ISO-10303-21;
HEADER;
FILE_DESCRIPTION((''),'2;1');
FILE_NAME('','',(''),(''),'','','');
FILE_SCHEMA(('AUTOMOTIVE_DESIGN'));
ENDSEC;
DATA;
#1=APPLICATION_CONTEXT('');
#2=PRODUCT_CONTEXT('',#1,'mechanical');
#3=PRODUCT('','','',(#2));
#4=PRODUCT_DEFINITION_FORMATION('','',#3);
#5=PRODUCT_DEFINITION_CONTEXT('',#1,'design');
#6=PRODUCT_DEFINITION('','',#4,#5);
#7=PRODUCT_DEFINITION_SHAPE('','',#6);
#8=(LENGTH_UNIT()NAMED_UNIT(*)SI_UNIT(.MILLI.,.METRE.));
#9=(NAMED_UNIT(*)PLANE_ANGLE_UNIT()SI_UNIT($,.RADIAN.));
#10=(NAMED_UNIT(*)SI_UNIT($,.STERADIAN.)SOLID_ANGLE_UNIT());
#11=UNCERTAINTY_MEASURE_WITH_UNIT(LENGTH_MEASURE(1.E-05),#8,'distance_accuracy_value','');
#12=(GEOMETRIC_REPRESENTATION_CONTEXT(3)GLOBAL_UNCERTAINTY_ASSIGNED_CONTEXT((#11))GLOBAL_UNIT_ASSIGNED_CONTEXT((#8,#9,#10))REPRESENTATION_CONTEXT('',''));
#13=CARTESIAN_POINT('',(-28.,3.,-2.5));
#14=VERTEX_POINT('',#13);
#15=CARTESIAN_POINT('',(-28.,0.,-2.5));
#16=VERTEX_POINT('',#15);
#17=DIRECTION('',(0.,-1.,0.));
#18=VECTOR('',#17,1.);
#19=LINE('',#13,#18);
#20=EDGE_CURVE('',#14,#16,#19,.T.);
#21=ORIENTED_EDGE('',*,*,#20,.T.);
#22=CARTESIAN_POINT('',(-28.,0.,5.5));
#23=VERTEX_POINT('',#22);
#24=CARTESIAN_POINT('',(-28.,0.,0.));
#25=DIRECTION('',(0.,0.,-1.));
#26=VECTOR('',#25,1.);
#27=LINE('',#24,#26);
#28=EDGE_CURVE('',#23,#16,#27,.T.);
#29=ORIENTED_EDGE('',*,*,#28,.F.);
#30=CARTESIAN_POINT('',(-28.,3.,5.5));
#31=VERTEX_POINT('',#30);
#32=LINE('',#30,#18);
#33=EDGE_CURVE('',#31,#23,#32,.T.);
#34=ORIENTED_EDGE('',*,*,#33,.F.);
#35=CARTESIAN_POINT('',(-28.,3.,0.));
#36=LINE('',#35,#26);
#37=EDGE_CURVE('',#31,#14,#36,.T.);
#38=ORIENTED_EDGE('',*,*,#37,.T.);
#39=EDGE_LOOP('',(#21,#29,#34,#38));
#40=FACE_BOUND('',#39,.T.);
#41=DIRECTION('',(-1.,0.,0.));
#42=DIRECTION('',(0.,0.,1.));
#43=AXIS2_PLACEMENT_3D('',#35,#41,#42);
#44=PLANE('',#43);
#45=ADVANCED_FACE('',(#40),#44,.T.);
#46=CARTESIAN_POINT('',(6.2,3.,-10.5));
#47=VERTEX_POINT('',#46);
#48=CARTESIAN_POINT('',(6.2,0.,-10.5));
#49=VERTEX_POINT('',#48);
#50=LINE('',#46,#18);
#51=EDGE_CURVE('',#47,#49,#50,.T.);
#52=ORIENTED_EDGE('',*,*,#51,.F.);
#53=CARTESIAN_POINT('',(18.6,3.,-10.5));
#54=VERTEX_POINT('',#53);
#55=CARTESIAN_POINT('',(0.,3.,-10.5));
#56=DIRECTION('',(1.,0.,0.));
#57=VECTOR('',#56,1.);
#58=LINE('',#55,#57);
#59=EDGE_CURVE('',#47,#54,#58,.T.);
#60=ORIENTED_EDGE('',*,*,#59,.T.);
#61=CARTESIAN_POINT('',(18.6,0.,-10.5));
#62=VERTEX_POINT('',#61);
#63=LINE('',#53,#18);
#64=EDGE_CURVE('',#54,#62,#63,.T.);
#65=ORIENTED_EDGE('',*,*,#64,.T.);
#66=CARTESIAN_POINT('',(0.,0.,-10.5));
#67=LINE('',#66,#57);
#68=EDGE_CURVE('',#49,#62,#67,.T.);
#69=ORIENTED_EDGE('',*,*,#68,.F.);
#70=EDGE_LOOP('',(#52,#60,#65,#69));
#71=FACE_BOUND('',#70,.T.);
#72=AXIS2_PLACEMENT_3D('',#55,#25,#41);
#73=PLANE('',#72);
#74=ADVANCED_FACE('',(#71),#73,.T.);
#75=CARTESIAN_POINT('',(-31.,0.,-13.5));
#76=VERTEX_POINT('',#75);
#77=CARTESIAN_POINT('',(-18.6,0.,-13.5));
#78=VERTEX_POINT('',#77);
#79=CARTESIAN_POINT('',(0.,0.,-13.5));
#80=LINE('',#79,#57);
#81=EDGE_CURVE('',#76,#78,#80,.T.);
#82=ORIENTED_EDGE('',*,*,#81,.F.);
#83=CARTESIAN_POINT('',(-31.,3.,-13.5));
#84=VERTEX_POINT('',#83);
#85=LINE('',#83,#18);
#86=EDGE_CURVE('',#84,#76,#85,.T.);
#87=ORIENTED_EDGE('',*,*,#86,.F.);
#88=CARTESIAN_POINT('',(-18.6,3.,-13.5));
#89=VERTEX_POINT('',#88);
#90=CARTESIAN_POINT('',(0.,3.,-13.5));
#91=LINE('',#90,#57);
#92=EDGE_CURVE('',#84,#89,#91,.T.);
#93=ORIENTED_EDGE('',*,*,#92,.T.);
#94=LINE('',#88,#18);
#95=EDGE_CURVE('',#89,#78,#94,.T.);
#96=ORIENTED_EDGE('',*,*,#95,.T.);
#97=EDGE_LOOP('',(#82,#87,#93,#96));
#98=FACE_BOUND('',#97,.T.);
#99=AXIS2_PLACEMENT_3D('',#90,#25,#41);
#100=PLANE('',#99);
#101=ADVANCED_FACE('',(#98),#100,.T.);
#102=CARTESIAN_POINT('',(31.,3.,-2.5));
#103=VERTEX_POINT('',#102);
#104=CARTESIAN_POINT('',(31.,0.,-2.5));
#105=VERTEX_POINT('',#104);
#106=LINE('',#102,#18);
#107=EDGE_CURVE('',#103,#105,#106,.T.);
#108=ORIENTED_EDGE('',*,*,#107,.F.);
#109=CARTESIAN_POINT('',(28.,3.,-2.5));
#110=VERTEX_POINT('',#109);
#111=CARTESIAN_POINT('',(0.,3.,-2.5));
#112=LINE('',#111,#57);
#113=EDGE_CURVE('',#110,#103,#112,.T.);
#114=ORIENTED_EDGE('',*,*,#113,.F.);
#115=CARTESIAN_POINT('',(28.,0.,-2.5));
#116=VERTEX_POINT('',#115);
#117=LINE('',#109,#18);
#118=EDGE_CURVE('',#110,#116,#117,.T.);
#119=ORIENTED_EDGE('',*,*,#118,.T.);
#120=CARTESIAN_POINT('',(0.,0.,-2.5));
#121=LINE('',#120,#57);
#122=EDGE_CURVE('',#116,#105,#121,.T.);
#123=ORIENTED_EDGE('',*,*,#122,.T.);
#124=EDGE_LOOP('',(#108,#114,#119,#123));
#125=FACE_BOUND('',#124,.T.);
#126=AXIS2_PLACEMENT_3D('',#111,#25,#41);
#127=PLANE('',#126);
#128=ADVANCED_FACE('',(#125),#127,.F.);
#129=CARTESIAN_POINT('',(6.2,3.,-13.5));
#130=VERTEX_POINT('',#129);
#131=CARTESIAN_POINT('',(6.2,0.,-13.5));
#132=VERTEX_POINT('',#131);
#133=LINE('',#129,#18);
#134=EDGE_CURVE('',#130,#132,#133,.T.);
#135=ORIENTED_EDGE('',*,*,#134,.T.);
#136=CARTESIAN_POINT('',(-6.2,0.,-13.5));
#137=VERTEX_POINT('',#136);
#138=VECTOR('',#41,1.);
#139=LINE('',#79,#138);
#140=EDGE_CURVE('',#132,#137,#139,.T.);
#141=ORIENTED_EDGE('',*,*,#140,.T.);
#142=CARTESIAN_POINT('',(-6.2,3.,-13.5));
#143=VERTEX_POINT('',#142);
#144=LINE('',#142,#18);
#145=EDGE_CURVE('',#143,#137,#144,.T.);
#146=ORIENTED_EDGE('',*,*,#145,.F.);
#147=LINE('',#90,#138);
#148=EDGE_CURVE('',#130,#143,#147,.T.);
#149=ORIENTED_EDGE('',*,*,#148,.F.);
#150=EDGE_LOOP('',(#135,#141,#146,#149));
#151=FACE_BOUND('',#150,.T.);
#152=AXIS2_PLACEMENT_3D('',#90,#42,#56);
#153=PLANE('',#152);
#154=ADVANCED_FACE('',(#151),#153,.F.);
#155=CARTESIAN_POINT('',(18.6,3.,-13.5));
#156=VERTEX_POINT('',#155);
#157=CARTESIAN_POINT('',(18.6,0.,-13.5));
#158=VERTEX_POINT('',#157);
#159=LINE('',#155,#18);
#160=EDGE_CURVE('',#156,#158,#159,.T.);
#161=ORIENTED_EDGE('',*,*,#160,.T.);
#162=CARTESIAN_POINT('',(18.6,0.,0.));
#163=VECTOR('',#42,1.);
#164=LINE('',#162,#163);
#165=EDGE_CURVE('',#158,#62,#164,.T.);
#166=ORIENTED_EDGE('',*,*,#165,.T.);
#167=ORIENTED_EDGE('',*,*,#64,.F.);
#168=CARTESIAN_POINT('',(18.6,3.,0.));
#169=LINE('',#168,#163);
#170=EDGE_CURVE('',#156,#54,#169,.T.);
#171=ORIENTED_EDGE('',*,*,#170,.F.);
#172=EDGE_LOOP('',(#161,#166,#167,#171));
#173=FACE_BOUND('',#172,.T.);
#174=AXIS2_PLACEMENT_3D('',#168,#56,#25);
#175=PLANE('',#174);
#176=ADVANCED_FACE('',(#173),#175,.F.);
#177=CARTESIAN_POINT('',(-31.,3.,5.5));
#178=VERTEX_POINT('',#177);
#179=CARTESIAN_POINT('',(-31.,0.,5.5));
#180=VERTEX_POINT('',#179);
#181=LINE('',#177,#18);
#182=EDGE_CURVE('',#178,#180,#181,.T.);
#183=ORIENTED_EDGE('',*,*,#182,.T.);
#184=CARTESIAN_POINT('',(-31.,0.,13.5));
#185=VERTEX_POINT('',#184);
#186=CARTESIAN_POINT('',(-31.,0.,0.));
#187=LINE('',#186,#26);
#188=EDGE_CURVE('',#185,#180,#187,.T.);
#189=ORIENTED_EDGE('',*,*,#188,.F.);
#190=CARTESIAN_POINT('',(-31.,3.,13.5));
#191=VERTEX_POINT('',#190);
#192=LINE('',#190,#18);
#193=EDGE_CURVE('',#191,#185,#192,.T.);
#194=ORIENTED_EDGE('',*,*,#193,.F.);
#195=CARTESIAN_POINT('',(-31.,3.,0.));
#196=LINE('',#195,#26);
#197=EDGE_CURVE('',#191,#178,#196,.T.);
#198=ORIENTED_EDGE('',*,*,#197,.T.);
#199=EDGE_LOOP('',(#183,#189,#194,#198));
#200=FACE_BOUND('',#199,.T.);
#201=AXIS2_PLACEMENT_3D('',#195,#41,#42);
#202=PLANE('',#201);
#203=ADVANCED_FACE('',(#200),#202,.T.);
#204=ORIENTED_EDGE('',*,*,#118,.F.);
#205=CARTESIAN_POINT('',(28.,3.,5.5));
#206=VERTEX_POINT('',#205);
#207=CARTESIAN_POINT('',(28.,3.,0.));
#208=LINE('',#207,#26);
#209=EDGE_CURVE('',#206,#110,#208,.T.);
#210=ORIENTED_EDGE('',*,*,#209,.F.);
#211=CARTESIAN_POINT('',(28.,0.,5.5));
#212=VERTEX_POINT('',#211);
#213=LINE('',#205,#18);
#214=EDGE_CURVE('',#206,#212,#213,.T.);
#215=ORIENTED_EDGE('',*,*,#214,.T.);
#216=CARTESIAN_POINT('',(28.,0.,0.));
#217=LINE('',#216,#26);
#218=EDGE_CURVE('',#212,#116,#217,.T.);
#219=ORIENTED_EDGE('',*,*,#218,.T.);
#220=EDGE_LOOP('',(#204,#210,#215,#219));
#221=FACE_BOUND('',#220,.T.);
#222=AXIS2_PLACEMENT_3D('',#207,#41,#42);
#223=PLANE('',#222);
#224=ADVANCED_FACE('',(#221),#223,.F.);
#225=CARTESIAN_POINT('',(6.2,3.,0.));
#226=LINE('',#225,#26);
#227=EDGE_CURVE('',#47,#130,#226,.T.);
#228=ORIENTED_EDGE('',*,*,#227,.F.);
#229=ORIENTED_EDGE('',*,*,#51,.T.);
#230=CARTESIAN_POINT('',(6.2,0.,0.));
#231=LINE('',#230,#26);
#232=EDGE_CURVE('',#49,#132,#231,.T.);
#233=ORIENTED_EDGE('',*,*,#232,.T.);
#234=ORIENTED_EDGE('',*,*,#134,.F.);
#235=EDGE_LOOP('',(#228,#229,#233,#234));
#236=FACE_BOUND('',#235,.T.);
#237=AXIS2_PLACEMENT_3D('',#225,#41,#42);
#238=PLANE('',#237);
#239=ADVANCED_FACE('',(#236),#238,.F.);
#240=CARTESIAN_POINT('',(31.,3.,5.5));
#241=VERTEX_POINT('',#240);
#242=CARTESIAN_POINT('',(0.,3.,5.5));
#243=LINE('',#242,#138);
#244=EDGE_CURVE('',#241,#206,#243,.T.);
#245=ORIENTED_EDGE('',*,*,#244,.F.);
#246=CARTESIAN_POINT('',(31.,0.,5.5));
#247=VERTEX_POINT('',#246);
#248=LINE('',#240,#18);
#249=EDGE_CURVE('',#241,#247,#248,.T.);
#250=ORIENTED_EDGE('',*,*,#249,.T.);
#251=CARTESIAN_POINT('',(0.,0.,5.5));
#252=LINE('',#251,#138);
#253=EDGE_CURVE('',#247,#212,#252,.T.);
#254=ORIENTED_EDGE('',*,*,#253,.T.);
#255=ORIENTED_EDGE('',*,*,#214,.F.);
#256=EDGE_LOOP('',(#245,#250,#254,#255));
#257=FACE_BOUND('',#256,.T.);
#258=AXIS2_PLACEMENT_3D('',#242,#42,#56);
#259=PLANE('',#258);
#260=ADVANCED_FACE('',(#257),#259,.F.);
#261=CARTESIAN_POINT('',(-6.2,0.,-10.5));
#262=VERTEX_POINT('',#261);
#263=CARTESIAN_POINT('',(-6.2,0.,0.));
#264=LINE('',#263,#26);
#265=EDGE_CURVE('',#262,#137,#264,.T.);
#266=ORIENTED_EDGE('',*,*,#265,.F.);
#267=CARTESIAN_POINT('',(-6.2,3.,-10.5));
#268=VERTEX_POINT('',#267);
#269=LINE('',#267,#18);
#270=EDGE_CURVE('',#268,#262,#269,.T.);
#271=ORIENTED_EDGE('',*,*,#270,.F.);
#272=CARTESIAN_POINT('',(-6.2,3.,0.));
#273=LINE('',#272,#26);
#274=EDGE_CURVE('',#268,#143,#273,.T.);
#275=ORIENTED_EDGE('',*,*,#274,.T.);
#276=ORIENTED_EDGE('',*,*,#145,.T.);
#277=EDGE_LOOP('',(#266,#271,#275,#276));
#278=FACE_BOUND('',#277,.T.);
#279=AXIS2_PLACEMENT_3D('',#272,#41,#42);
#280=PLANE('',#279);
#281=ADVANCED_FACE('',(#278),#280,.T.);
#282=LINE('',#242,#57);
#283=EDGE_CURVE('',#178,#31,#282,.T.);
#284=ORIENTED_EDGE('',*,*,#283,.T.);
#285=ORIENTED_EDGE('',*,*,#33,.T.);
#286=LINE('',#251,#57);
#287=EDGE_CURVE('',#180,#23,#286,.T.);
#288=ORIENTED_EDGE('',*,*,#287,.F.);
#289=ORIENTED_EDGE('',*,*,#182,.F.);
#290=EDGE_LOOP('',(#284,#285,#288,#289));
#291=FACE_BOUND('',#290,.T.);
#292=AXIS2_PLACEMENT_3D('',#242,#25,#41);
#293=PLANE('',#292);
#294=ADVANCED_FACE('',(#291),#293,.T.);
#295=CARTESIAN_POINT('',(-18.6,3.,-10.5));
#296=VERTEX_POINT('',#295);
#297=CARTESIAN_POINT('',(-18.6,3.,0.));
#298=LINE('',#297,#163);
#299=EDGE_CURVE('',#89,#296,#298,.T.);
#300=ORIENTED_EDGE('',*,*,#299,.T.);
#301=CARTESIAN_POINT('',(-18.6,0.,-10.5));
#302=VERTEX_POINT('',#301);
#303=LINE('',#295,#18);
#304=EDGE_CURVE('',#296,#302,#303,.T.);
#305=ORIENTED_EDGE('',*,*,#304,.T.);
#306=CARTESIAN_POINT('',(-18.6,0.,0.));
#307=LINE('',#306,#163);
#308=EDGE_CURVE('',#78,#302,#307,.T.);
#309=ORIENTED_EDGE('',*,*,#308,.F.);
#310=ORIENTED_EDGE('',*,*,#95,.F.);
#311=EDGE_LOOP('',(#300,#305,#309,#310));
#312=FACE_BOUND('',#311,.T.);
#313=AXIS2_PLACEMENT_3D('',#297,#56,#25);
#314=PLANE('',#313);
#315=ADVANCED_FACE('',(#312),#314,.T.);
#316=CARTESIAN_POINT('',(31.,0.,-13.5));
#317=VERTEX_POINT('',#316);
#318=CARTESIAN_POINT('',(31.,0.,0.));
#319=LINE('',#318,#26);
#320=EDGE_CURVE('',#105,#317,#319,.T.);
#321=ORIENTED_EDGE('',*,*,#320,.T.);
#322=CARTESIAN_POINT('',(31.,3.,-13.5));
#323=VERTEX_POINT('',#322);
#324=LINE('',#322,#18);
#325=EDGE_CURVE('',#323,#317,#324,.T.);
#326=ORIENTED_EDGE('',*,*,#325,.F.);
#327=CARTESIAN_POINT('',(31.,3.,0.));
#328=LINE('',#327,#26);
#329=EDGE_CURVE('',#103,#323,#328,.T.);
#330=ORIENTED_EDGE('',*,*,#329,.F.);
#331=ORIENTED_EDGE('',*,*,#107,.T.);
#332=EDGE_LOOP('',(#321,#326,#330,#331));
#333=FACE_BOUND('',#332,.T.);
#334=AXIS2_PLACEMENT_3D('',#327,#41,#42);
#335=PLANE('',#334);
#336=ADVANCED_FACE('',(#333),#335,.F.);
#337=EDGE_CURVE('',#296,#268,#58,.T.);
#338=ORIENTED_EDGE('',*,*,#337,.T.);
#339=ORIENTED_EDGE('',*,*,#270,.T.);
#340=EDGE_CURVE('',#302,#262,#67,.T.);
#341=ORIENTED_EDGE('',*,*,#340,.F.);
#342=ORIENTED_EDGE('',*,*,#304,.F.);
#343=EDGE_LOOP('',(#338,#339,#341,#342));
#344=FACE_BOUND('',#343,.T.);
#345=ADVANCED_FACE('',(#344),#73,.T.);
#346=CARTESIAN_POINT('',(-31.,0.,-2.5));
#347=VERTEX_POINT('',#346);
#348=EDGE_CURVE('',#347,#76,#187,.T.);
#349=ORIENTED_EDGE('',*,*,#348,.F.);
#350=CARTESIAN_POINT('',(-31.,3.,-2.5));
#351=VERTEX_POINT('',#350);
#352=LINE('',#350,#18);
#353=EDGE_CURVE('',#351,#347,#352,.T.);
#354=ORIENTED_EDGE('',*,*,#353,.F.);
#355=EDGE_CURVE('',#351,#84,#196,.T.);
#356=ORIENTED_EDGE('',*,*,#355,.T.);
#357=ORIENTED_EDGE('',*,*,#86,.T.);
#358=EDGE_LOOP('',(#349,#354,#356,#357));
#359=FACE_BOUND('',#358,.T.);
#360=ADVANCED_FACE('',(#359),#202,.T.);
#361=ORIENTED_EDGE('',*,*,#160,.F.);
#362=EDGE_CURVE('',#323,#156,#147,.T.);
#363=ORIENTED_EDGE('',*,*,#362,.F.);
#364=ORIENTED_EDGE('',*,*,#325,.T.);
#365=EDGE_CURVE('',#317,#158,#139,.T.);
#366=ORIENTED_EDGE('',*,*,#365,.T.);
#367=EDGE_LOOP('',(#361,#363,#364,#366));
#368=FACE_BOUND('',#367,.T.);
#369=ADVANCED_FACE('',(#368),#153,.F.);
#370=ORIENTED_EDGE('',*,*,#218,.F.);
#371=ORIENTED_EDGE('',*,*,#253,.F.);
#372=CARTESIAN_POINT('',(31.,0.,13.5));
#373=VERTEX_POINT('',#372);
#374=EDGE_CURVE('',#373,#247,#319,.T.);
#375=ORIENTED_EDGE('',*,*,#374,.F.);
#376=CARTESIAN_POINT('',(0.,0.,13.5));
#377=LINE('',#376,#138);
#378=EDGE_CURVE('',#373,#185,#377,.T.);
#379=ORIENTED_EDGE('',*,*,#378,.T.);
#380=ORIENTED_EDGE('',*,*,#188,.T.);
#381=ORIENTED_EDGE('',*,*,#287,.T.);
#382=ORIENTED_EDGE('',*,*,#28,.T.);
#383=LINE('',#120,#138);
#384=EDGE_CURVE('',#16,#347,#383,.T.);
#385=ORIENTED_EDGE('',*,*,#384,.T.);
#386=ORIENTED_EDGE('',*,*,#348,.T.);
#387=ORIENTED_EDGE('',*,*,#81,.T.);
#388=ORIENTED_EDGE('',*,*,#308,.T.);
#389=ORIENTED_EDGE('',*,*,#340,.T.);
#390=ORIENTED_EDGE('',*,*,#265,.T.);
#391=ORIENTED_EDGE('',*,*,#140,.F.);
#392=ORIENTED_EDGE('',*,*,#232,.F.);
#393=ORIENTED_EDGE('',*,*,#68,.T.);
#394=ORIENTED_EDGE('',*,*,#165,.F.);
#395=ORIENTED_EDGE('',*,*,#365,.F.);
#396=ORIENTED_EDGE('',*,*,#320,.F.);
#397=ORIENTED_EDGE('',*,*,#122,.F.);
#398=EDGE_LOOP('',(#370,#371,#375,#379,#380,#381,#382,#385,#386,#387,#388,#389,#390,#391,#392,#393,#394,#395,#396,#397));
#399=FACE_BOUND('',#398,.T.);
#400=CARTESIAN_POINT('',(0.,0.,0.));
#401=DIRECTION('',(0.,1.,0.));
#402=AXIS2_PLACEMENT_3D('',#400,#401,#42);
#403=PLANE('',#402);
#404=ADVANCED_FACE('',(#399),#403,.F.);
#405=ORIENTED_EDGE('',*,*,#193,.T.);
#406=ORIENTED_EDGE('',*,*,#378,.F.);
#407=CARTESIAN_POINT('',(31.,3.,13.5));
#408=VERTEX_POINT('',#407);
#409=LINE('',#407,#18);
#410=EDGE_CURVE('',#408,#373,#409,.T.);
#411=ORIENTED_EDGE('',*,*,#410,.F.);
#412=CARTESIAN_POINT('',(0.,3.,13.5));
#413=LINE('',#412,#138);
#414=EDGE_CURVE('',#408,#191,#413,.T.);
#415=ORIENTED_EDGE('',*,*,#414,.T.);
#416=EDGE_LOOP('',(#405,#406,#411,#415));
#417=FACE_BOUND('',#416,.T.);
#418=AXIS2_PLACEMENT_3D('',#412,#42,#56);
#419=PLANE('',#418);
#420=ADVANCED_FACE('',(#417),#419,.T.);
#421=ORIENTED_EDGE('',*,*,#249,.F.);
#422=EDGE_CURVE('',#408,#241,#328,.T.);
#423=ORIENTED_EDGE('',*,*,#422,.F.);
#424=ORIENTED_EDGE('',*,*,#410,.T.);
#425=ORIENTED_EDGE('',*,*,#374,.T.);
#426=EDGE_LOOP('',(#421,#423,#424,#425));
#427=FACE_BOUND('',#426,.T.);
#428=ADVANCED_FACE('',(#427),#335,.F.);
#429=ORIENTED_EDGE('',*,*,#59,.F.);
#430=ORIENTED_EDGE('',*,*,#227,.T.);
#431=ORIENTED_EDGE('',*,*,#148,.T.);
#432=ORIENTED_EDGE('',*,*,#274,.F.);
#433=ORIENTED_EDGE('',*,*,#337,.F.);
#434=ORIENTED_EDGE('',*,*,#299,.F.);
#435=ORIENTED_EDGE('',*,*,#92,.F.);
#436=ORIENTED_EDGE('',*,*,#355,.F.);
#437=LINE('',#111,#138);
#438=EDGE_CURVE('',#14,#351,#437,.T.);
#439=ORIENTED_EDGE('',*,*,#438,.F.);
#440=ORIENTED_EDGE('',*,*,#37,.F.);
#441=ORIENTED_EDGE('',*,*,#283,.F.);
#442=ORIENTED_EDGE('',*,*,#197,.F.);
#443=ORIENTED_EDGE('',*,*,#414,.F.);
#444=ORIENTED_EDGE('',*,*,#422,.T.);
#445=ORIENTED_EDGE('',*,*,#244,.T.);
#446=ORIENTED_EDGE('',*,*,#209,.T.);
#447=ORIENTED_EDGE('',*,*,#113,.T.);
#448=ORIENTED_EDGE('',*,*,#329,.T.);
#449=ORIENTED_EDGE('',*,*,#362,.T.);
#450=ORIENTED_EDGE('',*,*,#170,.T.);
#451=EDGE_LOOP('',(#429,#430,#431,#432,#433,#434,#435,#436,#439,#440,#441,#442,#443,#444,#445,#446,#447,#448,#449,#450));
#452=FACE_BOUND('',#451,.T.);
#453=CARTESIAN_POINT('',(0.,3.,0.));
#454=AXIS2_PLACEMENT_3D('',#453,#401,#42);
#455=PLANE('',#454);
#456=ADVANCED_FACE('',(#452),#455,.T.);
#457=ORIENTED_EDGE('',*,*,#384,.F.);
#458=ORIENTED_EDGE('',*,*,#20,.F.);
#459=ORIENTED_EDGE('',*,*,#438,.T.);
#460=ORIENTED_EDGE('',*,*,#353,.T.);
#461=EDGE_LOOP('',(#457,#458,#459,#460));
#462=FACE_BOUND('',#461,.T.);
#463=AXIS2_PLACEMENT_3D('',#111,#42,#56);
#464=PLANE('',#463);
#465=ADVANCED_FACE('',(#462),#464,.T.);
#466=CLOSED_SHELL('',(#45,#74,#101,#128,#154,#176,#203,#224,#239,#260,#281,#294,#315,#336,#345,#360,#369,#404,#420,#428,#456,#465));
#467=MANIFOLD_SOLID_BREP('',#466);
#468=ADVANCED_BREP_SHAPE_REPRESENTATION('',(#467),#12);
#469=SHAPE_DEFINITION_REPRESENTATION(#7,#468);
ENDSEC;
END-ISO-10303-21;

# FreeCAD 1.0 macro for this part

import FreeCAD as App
import Part
import Sketcher
from FreeCAD import Vector
Q = App.Units.Quantity


def add_polygon(sketch, points):
    """Adds a closed chain of lines whose ends are joined by coincident constraints."""
    first, n = sketch.GeometryCount, len(points)
    for a, b in zip(points, points[1:] + points[:1]):
        sketch.addGeometry(Part.LineSegment(App.Vector(*a, 0), App.Vector(*b, 0)), False)
    for i in range(n):
        sketch.addConstraint(Sketcher.Constraint("Coincident", first + i, 2, first + (i + 1) % n, 1))

doc = App.newDocument("Part")
params = doc.addObject("Spreadsheet::Sheet", "Params")
for row, (alias, value) in enumerate([
    ("sketch1_width", "3 mm"),
    ("sketch1_width2", "62 mm"),
    ("sketch1_height", "11 mm"),
    ("sketch1_height2", "8 mm"),
    ("pad1_length", "3 mm"),
], start=1):
    params.set(f"A{row}", alias)
    params.set(f"B{row}", "=" + value)
    params.setAlias(f"B{row}", alias)

body = doc.addObject("PartDesign::Body", "Body")

sketch1 = doc.addObject("Sketcher::SketchObject", "Sketch")
body.addObject(sketch1)
sketch1.AttachmentSupport = (doc.XZ_Plane, [""])
sketch1.MapMode = "FlatFace"
add_polygon(sketch1, [(28, -2.5), (31, -2.5), (31, -13.5), (18.6, -13.5), (18.6, -10.5), (6.2, -10.5), (6.2, -13.5), (-6.2, -13.5), (-6.2, -10.5), (-18.6, -10.5), (-18.6, -13.5), (-31, -13.5), (-31, -2.5), (-28, -2.5), (-28, 5.5), (-31, 5.5), (-31, 13.5), (31, 13.5), (31, 5.5), (28, 5.5)])
sketch1.addConstraint([
    Sketcher.Constraint("Horizontal", 0),
    Sketcher.Constraint("Vertical", 1),
    Sketcher.Constraint("Horizontal", 2),
    Sketcher.Constraint("Vertical", 3),
    Sketcher.Constraint("Horizontal", 4),
    Sketcher.Constraint("Vertical", 5),
    Sketcher.Constraint("Horizontal", 6),
    Sketcher.Constraint("Vertical", 7),
    Sketcher.Constraint("Horizontal", 8),
    Sketcher.Constraint("Vertical", 9),
    Sketcher.Constraint("Horizontal", 10),
    Sketcher.Constraint("Vertical", 11),
    Sketcher.Constraint("Horizontal", 12),
    Sketcher.Constraint("Vertical", 13),
    Sketcher.Constraint("Horizontal", 14),
    Sketcher.Constraint("Vertical", 15),
    Sketcher.Constraint("Horizontal", 16),
    Sketcher.Constraint("Vertical", 17),
    Sketcher.Constraint("Horizontal", 18),
    Sketcher.Constraint("Vertical", 19),
    Sketcher.Constraint("Symmetric", 1, 2, 15, 2, -1, 1),
    Sketcher.Constraint("Symmetric", 10, 2, 16, 2, -1, 1),
    Sketcher.Constraint("Symmetric", 4, 2, 7, 2, -2),
    Sketcher.Constraint("Symmetric", 0, 2, 11, 2, -2),
    Sketcher.Constraint("Symmetric", 13, 2, 18, 2, -2),
    Sketcher.Constraint("Horizontal", 2, 2, 5, 2),
    Sketcher.Constraint("Equal", 2, 4),
    Sketcher.Constraint("Equal", 4, 6),
    Sketcher.Constraint("Equal", 6, 8),
    Sketcher.Constraint("Equal", 18, 3),
    Sketcher.Constraint("Equal", 13, 15),
    Sketcher.Constraint("DistanceX", 0, 1, 0, 2, Q("3 mm")),
    Sketcher.Constraint("DistanceX", 16, 1, 16, 2, Q("62 mm")),
    Sketcher.Constraint("DistanceY", 1, 2, 1, 1, Q("11 mm")),
    Sketcher.Constraint("DistanceY", 13, 1, 13, 2, Q("8 mm")),
])
sketch1.setExpression("Constraints[51]", "Params.sketch1_width")
sketch1.setExpression("Constraints[52]", "Params.sketch1_width2")
sketch1.setExpression("Constraints[53]", "Params.sketch1_height")
sketch1.setExpression("Constraints[54]", "Params.sketch1_height2")
pad1 = doc.addObject("PartDesign::Pad", "Pad")
body.addObject(pad1)
pad1.Profile = sketch1
pad1.setExpression("Length", "Params.pad1_length")
pad1.Reversed = True

doc.recompute()
